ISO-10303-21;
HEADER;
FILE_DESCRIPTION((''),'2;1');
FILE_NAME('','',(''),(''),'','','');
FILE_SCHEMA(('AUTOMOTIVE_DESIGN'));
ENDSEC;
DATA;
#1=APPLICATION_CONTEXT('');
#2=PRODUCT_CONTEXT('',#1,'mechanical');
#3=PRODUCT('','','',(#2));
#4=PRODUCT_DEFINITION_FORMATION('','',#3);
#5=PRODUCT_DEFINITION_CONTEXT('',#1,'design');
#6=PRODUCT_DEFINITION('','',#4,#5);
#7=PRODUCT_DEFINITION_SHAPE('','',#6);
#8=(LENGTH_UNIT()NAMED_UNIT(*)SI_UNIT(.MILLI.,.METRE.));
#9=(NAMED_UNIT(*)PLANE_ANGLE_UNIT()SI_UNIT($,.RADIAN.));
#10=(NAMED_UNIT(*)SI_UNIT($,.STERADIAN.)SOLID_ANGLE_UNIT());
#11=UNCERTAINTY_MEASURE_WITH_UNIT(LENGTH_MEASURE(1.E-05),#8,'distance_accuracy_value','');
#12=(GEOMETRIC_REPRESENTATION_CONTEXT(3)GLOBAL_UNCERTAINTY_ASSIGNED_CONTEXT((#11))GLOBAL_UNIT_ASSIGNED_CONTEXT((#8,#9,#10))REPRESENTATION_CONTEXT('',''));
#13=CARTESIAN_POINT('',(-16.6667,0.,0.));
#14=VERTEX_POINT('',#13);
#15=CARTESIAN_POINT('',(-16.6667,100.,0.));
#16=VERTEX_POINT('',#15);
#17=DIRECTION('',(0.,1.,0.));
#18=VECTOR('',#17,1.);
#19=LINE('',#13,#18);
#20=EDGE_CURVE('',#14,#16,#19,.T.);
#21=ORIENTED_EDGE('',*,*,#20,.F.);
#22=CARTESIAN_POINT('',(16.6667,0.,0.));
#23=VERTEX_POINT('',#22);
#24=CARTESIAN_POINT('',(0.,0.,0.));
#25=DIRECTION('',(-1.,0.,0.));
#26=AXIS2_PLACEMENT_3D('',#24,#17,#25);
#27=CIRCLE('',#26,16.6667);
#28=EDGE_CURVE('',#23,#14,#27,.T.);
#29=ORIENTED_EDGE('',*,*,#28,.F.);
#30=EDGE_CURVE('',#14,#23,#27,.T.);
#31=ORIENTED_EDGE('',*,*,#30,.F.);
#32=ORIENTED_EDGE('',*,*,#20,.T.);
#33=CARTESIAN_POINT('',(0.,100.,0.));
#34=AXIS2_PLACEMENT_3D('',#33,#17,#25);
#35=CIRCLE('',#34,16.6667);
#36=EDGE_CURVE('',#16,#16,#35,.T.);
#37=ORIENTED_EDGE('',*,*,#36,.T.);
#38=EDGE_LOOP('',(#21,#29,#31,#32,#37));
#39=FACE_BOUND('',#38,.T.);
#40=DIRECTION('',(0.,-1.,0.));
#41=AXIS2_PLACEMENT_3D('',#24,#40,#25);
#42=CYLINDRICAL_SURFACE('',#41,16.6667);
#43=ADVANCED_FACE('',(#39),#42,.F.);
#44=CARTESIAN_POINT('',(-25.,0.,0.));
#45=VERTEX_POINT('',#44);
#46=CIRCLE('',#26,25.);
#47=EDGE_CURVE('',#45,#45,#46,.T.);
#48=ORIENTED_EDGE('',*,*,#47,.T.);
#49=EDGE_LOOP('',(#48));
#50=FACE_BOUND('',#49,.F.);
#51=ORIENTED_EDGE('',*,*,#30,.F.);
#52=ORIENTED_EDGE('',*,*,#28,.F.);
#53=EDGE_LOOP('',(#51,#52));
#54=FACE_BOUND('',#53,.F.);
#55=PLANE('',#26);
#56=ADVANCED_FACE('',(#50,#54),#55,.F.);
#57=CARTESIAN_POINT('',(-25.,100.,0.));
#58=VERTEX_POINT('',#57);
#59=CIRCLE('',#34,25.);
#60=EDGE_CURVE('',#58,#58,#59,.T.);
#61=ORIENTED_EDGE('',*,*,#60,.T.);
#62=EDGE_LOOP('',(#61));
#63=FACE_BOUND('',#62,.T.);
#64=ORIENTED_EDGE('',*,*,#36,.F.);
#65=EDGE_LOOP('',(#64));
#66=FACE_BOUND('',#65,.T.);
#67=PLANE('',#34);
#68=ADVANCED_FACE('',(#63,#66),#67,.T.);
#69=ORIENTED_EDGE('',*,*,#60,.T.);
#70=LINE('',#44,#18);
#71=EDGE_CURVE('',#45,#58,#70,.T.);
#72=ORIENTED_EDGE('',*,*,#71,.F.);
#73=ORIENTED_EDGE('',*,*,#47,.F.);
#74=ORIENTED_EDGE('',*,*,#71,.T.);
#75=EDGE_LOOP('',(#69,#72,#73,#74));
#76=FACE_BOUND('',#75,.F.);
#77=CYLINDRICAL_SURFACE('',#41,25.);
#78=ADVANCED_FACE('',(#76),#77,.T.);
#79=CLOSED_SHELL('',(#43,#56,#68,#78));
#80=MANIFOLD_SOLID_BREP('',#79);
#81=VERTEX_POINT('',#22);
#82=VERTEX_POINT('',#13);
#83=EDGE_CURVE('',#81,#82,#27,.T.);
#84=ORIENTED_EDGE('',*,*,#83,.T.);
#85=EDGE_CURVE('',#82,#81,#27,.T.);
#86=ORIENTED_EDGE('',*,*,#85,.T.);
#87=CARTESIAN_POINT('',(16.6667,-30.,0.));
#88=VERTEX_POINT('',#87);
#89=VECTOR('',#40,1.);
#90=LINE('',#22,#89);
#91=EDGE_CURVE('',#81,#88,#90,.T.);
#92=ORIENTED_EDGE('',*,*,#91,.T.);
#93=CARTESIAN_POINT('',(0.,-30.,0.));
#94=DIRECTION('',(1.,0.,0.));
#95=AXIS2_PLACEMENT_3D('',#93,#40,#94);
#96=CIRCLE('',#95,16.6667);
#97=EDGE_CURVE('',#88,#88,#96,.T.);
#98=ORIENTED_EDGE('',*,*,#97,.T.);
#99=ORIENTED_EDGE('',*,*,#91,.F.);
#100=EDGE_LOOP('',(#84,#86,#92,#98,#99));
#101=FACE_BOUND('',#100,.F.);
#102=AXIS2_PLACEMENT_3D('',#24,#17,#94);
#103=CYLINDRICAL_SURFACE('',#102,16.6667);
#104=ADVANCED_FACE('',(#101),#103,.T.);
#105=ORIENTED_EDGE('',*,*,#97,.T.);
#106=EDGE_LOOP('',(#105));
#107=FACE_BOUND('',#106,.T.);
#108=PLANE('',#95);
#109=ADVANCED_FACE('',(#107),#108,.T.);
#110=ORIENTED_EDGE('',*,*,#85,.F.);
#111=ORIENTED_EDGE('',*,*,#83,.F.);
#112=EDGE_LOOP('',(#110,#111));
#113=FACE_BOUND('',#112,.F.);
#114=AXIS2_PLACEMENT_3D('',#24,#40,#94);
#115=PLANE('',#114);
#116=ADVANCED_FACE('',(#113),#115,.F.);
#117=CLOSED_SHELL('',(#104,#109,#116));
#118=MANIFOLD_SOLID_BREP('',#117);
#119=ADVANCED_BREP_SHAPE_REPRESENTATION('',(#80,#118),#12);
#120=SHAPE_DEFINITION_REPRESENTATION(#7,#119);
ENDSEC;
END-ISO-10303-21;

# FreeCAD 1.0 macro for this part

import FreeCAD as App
import Part
import Sketcher
Q = App.Units.Quantity

doc = App.newDocument("Part")
body = doc.addObject("PartDesign::Body", "Body")
body.AllowCompound = True

# Sketch on XZ plane
sketch1 = body.newObject("Sketcher::SketchObject", "Sketch")
sketch1.AttachmentSupport = (doc.getObject("XZ_Plane"), [""])
sketch1.MapMode = "FlatFace"
sketch1.addGeometry(Part.Circle(App.Vector(0, 0, 0), App.Vector(0, 0, 1), 25), False)
sketch1.addGeometry(Part.Circle(App.Vector(0, 0, 0), App.Vector(0, 0, 1), 17), False)
sketch1.addConstraint(Sketcher.Constraint("Coincident", 0, 3, -1, 1))
sketch1.addConstraint(Sketcher.Constraint("Coincident", 1, 3, -1, 1))
sketch1.addConstraint(Sketcher.Constraint("Diameter", 0, Q("1.9685 in")))
sketch1.addConstraint(Sketcher.Constraint("Diameter", 1, Q("33.3334 mm")))
pad1 = body.newObject("PartDesign::Pad", "Pad")
pad1.Profile = sketch1
pad1.Length = Q("3.9370079 in")
pad1.Reversed = True

# Sketch on XZ plane
sketch2 = body.newObject("Sketcher::SketchObject", "Sketch001")
sketch2.AttachmentSupport = (doc.getObject("XZ_Plane"), [""])
sketch2.MapMode = "FlatFace"
sketch2.addGeometry(Part.Circle(App.Vector(0, 0, 0), App.Vector(0, 0, 1), 17), False)
sketch2.addConstraint(Sketcher.Constraint("Coincident", 0, 3, -1, 1))
sketch2.addConstraint(Sketcher.Constraint("Diameter", 0, Q("33.3334 mm")))
pad2 = body.newObject("PartDesign::Pad", "Pad001")
pad2.Profile = sketch2
pad2.Length = Q("1.1811024 in")

doc.recompute()
